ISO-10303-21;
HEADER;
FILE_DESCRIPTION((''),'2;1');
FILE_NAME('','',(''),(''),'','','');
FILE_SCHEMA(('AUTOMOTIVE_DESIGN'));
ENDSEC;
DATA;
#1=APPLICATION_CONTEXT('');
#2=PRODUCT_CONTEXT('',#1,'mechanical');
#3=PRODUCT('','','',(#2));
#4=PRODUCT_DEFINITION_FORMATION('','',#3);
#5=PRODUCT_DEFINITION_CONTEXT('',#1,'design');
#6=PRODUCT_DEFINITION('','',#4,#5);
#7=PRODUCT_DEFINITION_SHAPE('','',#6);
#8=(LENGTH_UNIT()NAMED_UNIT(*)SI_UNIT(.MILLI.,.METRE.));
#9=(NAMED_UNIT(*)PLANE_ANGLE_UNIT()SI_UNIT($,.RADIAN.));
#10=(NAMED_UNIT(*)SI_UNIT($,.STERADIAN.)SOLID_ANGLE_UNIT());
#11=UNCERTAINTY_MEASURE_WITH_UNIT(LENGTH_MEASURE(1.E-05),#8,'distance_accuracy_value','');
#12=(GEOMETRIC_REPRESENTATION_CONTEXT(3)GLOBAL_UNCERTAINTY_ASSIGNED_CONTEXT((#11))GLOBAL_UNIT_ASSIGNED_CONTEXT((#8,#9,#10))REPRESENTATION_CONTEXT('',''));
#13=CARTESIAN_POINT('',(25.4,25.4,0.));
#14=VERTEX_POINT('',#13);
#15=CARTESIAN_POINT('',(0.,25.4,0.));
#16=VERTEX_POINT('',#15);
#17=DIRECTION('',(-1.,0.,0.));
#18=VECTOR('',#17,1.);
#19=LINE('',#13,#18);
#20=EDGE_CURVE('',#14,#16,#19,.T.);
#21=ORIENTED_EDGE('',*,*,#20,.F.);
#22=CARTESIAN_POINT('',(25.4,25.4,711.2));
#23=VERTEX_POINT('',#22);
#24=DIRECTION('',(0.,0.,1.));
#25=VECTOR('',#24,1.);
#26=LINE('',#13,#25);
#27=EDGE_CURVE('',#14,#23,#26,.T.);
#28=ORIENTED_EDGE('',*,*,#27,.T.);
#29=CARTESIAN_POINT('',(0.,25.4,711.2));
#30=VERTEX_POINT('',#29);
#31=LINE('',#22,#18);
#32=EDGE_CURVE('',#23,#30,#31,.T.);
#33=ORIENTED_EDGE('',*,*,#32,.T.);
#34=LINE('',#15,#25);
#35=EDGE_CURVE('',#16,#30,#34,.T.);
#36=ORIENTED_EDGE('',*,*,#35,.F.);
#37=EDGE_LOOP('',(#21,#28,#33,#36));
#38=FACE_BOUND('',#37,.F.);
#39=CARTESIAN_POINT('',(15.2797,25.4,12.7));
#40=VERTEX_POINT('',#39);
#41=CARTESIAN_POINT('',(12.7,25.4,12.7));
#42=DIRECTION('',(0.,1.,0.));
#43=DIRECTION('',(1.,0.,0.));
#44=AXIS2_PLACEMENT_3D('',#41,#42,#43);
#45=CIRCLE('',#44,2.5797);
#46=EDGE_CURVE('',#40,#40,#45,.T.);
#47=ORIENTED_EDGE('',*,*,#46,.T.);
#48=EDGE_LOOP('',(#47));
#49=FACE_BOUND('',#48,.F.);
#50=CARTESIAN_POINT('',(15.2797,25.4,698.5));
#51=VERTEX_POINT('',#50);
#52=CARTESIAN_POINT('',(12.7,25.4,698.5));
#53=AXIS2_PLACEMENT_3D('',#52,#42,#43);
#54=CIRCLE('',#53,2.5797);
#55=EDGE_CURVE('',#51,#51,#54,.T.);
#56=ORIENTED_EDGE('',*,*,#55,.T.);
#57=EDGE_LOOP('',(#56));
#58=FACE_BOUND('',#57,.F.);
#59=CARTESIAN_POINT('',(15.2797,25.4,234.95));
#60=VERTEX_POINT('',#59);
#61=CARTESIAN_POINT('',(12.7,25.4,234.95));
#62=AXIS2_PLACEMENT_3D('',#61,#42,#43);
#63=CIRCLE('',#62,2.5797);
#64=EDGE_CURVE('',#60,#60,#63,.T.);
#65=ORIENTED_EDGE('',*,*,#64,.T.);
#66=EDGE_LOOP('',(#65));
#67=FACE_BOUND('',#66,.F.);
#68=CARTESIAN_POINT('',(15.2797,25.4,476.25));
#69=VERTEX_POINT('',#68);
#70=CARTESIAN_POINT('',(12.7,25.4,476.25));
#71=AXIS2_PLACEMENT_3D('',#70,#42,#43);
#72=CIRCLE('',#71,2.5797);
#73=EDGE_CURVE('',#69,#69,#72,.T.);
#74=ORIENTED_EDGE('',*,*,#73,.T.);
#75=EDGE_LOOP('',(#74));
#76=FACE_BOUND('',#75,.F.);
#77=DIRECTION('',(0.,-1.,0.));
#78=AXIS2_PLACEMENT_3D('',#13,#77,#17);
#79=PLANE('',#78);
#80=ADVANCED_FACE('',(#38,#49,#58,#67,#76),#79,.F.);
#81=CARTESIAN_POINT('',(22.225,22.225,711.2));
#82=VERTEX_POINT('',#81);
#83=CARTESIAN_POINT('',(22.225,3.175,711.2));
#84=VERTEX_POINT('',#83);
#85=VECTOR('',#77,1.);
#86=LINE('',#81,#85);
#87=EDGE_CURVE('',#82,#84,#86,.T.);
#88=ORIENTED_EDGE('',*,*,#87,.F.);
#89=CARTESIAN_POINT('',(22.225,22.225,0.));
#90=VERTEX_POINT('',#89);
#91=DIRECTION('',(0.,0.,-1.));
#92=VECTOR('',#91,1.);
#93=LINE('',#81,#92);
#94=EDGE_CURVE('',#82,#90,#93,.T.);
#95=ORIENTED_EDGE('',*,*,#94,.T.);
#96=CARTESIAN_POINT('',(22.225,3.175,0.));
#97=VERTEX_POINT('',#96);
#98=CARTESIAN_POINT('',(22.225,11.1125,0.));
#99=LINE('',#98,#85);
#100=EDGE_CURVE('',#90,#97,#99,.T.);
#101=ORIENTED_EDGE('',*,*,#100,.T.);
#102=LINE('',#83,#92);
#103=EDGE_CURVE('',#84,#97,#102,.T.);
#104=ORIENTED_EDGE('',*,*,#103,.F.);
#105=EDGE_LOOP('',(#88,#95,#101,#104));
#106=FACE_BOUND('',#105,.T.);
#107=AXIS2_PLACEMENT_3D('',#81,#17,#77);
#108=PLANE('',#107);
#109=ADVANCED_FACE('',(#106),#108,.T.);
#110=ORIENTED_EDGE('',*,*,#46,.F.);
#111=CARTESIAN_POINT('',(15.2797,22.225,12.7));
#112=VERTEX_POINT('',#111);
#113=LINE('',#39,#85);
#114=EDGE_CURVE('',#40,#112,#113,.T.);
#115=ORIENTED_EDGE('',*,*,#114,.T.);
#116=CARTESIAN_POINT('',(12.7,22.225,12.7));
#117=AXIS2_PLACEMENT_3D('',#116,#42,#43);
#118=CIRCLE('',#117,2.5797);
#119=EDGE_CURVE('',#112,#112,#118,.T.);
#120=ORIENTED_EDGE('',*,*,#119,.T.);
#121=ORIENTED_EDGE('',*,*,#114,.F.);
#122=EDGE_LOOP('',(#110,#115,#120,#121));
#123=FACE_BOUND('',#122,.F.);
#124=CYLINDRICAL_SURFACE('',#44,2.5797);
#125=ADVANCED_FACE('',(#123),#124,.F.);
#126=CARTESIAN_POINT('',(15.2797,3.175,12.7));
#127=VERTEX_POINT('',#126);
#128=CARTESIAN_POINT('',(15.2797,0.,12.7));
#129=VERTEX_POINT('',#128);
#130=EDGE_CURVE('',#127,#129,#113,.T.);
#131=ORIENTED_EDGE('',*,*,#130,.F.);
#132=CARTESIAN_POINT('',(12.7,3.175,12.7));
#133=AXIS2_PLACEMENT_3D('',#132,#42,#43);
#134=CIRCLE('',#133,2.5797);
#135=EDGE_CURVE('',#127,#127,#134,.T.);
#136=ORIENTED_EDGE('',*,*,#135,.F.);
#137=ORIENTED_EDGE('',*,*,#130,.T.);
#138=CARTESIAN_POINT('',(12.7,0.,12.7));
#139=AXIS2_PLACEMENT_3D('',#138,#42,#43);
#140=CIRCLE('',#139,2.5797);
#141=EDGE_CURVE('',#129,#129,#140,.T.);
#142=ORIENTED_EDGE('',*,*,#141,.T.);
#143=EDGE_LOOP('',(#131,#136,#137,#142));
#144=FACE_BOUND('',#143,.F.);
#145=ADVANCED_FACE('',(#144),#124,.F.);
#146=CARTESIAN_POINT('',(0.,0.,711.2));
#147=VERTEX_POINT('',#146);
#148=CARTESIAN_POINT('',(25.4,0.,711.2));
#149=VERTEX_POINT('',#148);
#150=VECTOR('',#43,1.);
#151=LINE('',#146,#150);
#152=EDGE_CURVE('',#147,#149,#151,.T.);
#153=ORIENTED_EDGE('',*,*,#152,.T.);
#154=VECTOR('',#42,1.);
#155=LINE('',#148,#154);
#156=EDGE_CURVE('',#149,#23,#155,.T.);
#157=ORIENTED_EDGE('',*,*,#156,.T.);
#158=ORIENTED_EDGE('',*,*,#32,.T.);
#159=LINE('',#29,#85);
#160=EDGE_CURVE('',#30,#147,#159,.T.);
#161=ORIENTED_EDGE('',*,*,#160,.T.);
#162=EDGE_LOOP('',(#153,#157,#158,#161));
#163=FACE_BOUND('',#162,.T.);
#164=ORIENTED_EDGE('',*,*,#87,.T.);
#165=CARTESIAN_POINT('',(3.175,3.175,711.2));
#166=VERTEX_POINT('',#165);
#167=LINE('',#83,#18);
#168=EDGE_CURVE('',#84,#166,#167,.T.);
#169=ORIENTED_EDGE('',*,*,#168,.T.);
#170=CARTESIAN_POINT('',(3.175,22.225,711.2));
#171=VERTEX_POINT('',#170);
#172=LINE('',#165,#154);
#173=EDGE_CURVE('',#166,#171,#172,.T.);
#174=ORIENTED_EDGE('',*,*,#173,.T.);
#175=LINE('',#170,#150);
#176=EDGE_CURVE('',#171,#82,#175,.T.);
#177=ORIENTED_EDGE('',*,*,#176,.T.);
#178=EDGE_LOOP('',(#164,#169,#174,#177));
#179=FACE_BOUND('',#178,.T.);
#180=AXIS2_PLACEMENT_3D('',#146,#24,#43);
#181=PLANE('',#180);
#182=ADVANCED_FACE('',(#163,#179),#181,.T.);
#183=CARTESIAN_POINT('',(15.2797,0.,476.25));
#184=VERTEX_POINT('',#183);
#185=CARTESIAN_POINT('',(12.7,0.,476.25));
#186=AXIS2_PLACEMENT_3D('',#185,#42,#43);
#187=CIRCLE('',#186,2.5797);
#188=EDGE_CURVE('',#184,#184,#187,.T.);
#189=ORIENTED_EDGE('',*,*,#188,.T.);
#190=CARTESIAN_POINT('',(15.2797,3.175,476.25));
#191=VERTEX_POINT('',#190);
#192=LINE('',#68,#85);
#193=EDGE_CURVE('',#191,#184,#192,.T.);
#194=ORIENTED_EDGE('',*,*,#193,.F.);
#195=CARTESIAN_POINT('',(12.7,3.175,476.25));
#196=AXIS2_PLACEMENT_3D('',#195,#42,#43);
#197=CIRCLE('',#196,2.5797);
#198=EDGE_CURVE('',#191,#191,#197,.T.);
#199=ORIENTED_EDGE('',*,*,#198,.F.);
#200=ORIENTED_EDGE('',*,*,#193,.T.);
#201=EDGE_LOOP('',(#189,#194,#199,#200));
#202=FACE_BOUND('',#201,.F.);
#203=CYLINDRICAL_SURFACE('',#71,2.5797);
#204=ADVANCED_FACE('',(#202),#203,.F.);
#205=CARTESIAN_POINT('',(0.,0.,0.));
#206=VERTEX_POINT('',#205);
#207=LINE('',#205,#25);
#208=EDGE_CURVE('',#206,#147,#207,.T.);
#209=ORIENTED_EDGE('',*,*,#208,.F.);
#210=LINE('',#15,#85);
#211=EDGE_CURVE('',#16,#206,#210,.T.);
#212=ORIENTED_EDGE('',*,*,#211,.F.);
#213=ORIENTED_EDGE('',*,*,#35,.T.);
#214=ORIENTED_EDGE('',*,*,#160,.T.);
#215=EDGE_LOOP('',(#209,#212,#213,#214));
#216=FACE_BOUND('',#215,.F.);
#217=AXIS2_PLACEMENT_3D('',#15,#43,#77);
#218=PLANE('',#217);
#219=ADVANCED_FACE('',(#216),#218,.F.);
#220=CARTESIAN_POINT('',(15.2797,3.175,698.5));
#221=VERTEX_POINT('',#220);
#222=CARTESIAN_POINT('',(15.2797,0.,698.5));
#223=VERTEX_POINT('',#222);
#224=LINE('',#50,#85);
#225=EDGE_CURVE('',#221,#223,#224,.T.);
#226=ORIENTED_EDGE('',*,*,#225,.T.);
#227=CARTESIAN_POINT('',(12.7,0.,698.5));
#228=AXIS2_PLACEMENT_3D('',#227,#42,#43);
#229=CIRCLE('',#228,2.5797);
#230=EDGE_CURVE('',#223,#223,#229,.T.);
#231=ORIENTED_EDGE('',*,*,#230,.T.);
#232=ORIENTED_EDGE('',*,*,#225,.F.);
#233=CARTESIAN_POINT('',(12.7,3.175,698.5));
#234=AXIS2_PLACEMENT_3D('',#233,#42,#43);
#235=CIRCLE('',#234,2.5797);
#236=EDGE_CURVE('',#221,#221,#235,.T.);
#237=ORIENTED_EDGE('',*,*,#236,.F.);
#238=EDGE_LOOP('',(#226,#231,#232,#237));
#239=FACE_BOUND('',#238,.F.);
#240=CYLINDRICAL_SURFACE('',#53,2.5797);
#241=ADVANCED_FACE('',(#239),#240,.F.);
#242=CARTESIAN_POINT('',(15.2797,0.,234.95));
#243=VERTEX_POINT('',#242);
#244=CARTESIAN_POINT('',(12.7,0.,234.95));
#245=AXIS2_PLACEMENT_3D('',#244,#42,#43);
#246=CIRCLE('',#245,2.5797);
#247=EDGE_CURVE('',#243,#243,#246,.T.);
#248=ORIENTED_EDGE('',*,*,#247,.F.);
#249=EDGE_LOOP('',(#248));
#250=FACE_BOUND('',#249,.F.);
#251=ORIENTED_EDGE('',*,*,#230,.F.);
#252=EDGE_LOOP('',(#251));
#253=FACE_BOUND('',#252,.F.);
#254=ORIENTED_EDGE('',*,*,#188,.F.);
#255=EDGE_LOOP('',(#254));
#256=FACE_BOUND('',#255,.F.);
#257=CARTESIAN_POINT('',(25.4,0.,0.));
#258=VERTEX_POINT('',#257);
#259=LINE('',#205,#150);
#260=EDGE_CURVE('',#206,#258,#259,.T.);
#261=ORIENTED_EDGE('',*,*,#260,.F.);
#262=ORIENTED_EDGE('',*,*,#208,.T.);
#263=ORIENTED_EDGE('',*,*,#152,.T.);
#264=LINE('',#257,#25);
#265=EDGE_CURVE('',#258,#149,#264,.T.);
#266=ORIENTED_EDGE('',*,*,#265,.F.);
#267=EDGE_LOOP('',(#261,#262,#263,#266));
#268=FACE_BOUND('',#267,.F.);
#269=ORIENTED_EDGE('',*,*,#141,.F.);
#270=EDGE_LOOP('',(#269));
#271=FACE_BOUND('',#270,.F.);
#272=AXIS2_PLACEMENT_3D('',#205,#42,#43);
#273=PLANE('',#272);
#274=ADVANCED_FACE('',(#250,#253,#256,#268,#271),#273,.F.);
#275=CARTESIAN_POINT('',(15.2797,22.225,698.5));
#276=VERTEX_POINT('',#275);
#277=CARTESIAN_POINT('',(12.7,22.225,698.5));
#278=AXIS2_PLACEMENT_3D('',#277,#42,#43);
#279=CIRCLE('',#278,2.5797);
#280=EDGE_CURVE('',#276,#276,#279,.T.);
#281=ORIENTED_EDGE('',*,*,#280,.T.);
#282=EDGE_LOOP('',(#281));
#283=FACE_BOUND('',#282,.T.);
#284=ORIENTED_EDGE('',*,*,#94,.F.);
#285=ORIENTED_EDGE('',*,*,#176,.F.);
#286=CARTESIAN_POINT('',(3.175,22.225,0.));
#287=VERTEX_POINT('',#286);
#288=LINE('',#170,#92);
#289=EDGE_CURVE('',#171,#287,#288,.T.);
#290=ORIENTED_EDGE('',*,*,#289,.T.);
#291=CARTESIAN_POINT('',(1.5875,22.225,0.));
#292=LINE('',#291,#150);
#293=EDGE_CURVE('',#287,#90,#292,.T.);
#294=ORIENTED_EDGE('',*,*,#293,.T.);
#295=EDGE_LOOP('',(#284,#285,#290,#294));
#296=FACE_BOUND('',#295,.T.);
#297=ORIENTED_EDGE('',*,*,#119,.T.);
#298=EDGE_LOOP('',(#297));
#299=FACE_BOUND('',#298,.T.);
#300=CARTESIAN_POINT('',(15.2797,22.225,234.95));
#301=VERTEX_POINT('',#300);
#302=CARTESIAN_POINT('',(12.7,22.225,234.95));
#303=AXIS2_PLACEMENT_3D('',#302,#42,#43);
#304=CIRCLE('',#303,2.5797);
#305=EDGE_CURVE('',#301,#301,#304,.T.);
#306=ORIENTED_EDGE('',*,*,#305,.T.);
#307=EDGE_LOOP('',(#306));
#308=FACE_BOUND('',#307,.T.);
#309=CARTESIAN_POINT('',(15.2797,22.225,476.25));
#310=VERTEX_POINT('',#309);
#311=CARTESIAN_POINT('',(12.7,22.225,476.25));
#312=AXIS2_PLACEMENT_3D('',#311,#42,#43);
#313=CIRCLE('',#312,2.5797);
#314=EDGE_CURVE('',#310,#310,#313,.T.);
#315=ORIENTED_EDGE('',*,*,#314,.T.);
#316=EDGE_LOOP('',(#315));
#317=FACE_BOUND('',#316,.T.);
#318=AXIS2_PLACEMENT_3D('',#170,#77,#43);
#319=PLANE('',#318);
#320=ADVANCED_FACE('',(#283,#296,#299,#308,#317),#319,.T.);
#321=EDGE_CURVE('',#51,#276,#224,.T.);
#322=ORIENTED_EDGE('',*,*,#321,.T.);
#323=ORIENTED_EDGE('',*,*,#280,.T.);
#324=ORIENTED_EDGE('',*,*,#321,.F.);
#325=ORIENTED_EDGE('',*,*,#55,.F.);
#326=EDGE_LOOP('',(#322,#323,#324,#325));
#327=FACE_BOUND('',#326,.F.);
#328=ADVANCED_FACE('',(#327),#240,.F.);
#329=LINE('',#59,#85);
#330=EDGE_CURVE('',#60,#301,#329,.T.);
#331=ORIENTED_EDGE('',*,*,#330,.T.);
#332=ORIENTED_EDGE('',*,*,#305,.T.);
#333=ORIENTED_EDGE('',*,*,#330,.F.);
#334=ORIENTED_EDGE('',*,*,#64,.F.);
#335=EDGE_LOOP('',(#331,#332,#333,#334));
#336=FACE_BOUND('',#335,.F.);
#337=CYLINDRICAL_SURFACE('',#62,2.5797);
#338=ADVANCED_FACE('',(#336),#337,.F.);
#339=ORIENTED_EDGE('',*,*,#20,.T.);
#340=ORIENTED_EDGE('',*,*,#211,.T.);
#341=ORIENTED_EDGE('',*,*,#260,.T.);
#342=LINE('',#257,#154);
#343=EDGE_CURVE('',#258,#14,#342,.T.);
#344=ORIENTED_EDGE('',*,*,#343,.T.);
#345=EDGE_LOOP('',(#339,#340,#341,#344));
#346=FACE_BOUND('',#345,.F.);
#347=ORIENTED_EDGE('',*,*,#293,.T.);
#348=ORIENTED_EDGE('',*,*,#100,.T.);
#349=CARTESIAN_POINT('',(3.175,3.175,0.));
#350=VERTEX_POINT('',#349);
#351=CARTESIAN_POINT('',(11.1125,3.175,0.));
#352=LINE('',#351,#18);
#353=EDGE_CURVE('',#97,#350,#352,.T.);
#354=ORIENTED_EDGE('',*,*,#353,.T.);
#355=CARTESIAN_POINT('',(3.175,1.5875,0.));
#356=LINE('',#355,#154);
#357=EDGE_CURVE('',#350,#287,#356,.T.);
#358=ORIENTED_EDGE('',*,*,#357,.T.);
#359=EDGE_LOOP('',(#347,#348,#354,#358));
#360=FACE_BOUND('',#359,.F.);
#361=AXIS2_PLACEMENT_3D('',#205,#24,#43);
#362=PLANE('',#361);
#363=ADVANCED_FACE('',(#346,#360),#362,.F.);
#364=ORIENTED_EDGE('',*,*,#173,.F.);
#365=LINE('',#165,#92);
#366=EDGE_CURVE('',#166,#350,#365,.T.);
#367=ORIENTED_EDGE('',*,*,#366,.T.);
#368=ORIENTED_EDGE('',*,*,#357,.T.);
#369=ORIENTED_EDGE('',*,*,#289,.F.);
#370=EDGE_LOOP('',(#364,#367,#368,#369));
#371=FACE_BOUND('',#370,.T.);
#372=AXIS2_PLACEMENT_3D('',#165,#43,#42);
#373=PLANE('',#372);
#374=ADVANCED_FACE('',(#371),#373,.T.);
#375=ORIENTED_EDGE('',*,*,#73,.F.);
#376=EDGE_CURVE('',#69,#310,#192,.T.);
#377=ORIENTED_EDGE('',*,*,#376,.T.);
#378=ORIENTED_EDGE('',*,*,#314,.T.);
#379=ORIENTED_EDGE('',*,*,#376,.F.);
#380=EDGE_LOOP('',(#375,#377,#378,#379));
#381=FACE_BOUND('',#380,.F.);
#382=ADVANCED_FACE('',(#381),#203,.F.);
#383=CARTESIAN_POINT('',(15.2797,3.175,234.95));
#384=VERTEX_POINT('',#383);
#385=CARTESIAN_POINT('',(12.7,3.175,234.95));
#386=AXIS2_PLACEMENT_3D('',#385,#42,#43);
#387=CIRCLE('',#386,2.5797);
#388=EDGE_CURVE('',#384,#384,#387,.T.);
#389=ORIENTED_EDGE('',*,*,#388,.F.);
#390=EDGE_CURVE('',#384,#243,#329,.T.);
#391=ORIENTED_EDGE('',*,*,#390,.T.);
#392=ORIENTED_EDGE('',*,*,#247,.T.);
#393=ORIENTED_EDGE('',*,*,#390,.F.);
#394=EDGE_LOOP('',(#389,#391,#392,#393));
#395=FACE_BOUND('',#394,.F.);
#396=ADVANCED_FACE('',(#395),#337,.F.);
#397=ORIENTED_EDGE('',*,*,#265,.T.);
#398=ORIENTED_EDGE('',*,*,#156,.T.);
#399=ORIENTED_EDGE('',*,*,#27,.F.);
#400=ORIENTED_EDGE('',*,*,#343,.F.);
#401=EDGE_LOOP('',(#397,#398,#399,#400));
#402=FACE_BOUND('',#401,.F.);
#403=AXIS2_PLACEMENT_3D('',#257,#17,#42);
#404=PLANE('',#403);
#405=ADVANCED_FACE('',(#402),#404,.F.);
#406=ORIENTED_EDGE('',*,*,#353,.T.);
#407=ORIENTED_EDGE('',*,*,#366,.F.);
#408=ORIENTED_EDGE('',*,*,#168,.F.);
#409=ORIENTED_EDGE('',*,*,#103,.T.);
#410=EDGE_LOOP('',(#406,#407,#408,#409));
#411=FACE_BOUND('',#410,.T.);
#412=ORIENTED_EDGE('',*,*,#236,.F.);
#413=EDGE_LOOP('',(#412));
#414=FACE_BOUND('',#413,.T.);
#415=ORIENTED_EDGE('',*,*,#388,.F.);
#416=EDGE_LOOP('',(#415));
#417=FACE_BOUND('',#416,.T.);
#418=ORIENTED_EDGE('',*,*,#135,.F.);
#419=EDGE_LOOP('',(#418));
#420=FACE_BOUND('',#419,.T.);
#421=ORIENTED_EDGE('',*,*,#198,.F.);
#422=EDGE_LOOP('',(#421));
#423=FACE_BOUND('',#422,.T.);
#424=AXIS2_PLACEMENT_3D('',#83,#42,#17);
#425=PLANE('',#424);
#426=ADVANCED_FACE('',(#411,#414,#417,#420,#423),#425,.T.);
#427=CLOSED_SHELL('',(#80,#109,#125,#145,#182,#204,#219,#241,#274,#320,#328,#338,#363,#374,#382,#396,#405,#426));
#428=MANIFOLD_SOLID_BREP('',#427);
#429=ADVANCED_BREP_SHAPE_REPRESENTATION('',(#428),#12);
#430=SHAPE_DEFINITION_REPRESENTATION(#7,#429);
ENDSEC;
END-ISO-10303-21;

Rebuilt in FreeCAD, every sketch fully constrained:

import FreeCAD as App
import Part
import Sketcher
from FreeCAD import Vector
Q = App.Units.Quantity


def add_polygon(sketch, points):
    """Adds a closed chain of lines whose ends are joined by coincident constraints."""
    first, n = sketch.GeometryCount, len(points)
    for a, b in zip(points, points[1:] + points[:1]):
        sketch.addGeometry(Part.LineSegment(App.Vector(*a, 0), App.Vector(*b, 0)), False)
    for i in range(n):
        sketch.addConstraint(Sketcher.Constraint("Coincident", first + i, 2, first + (i + 1) % n, 1))

doc = App.newDocument("Part")
params = doc.addObject("Spreadsheet::Sheet", "Params")
for row, (alias, value) in enumerate([
    ("sketch1_width", "1 in"),
    ("pad1_length", "28 in"),
    ("sketch2_diameter", "0.203126 in"),
    ("pocket1_length", "28 in"),
    ("sketch3_width", "0.75 in"),
    ("pocket2_length", "30 in"),
], start=1):
    params.set(f"A{row}", alias)
    params.set(f"B{row}", "=" + value)
    params.setAlias(f"B{row}", alias)

body = doc.addObject("PartDesign::Body", "Body")

# Sketch on XY plane
sketch1 = body.newObject("Sketcher::SketchObject", "Sketch")
sketch1.AttachmentSupport = (doc.getObject("XY_Plane"), [""])
sketch1.MapMode = "FlatFace"
add_polygon(sketch1, [(0, 25), (0, 0), (25, 0), (25, 25)])  # lines 0-3
sketch1.addConstraint([
    Sketcher.Constraint("Vertical", 0),
    Sketcher.Constraint("Horizontal", 1),
    Sketcher.Constraint("Vertical", 2),
    Sketcher.Constraint("Horizontal", 3),
    Sketcher.Constraint("Coincident", 0, 2, -1, 1),
    Sketcher.Constraint("Equal", 3, 0),
    Sketcher.Constraint("DistanceX", 1, 1, 1, 2, Q("1 in")),
])
sketch1.setExpression("Constraints[10]", "Params.sketch1_width")
pad1 = body.newObject("PartDesign::Pad", "Pad")
pad1.Profile = sketch1
pad1.setExpression("Length", "Params.pad1_length")

# Sketch on XZ plane
sketch2 = body.newObject("Sketcher::SketchObject", "Sketch001")
sketch2.AttachmentSupport = (doc.getObject("XZ_Plane"), [""])
sketch2.MapMode = "FlatFace"
sketch2.AttachmentOffset = App.Placement(Vector(0, 0, -1 * 25.4), App.Rotation())
sketch2.addGeometry([
    Part.Circle(Vector(12.7, 698.5, 0), Vector(0, 0, 1), 2.6),
    Part.Circle(Vector(12.7, 476.2, 0), Vector(0, 0, 1), 2.6),
    Part.Circle(Vector(12.7, 12.7, 0), Vector(0, 0, 1), 2.6),
    Part.Circle(Vector(12.7, 234.9, 0), Vector(0, 0, 1), 2.6),
], False)
sketch2.addConstraint([
    Sketcher.Constraint("Equal", 0, 1),
    Sketcher.Constraint("Equal", 1, 2),
    Sketcher.Constraint("Equal", 2, 3),
    Sketcher.Constraint("Vertical", 0, 3, 1, 3),
    Sketcher.Constraint("Vertical", 1, 3, 2, 3),
    Sketcher.Constraint("Vertical", 2, 3, 3, 3),
    Sketcher.Constraint("Diameter", 0, Q("0.203126 in")),
    Sketcher.Constraint("DistanceX", -1, 1, 0, 3, Q("0.5 in")),
    Sketcher.Constraint("DistanceY", -1, 1, 2, 3, Q("0.5 in")),
    Sketcher.Constraint("DistanceY", -1, 1, 3, 3, Q("9.25 in")),
    Sketcher.Constraint("DistanceY", 2, 3, 0, 3, Q("27 in")),
    Sketcher.Constraint("DistanceY", 3, 3, 1, 3, Q("9.5 in")),
])
sketch2.setExpression("Constraints[6]", "Params.sketch2_diameter")
pocket1 = body.newObject("PartDesign::Pocket", "Pocket")
pocket1.Profile = sketch2
pocket1.setExpression("Length", "Params.pocket1_length")
pocket1.Reversed = True

# Sketch on XY plane
sketch3 = body.newObject("Sketcher::SketchObject", "Sketch002")
sketch3.AttachmentSupport = (doc.getObject("XY_Plane"), [""])
sketch3.MapMode = "FlatFace"
sketch3.AttachmentOffset = App.Placement(Vector(0, 0, 28 * 25.4), App.Rotation())
add_polygon(sketch3, [(22, 22), (3, 22), (3, 3), (22, 3)])  # lines 0-3
sketch3.addConstraint([
    Sketcher.Constraint("Horizontal", 0),
    Sketcher.Constraint("Vertical", 1),
    Sketcher.Constraint("Horizontal", 2),
    Sketcher.Constraint("Vertical", 3),
    Sketcher.Constraint("Equal", 2, 1),
    Sketcher.Constraint("DistanceX", -1, 1, 0, 2, Q("0.125 in")),
    Sketcher.Constraint("DistanceY", -1, 1, 1, 2, Q("0.125 in")),
    Sketcher.Constraint("DistanceX", 0, 2, 0, 1, Q("0.75 in")),
])
sketch3.setExpression("Constraints[11]", "Params.sketch3_width")
pocket2 = body.newObject("PartDesign::Pocket", "Pocket001")
pocket2.Profile = sketch3
pocket2.setExpression("Length", "Params.pocket2_length")

doc.recompute()
